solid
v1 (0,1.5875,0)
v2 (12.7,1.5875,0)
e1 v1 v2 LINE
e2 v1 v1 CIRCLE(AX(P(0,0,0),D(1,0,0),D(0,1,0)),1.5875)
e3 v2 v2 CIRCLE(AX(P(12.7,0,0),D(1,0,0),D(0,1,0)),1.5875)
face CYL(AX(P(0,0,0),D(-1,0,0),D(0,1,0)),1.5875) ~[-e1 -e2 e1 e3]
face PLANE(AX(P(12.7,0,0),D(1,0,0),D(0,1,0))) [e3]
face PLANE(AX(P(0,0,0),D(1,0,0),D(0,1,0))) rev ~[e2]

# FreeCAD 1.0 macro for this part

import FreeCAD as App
import Part
import Sketcher
from FreeCAD import Vector
Q = App.Units.Quantity

doc = App.newDocument("Part")
params = doc.addObject("Spreadsheet::Sheet", "Params")
for row, (alias, value) in enumerate([
    ("sketch1_diameter", "0.125 in"),
    ("pad1_length", "0.5 in"),
], start=1):
    params.set(f"A{row}", alias)
    params.set(f"B{row}", "=" + value)
    params.setAlias(f"B{row}", alias)

body = doc.addObject("PartDesign::Body", "Body")

sketch1 = body.newObject("Sketcher::SketchObject", "Sketch")
sketch1.AttachmentSupport = (doc.getObject("YZ_Plane"), [""])
sketch1.MapMode = "FlatFace"
sketch1.addGeometry(Part.Circle(Vector(0, 0, 0), Vector(0, 0, 1), 1.6), False)
sketch1.addConstraint(Sketcher.Constraint("Coincident", 0, 3, -1, 1))
sketch1.addConstraint(Sketcher.Constraint("Diameter", 0, Q("0.125 in")))
sketch1.setExpression("Constraints[1]", "Params.sketch1_diameter")
pad1 = body.newObject("PartDesign::Pad", "Pad")
pad1.Profile = sketch1
pad1.setExpression("Length", "Params.pad1_length")

doc.recompute()
